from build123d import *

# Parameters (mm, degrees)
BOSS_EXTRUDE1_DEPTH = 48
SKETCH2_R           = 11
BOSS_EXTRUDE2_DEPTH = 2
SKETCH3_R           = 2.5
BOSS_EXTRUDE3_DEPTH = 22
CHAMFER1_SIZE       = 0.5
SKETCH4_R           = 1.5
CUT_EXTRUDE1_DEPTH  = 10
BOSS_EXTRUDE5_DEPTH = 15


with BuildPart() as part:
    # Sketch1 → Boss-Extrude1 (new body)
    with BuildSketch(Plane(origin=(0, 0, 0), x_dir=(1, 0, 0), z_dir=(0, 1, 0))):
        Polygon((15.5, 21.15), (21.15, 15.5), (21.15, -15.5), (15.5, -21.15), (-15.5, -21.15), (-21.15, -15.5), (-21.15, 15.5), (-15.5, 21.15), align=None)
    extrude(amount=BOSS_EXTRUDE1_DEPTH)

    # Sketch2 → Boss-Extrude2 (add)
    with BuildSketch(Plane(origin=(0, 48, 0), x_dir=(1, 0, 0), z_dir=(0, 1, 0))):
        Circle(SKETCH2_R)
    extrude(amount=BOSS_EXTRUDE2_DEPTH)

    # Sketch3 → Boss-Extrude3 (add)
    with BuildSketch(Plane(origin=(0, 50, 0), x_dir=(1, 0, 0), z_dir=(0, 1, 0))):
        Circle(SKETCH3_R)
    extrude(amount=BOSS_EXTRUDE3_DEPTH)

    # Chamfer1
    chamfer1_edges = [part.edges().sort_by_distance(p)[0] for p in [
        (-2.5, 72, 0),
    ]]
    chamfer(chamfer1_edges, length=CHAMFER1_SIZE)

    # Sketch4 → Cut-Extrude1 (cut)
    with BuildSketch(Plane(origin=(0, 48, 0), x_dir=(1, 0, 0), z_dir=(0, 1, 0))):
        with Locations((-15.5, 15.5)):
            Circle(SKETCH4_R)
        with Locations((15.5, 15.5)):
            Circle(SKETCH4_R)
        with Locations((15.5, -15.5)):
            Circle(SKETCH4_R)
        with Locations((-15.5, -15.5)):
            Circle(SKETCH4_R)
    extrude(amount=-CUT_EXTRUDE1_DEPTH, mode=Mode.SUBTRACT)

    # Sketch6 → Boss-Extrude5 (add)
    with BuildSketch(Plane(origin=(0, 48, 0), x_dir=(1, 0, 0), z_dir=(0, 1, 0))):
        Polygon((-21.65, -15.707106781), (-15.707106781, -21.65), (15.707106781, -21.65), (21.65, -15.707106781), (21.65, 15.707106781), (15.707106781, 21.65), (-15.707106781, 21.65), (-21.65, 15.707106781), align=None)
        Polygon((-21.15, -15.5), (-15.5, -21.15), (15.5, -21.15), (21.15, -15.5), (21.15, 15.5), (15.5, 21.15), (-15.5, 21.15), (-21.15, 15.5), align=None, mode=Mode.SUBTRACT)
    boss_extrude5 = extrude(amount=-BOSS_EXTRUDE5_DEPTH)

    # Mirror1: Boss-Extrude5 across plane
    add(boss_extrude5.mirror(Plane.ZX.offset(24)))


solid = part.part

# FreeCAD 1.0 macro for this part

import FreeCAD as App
import Part
import Sketcher
from FreeCAD import Vector
Q = App.Units.Quantity


def edges_at(feature, points):
    """Names of the edges that pass closest to the given points."""
    edges = feature.Shape.Edges
    near = lambda p: min(range(len(edges)), key=lambda i: edges[i].distToShape(Part.Vertex(*p))[0])
    return sorted({f"Edge{near(p) + 1}" for p in points})


def add_polygon(sketch, points):
    """Adds a closed chain of lines whose ends are joined by coincident constraints."""
    first, n = sketch.GeometryCount, len(points)
    for a, b in zip(points, points[1:] + points[:1]):
        sketch.addGeometry(Part.LineSegment(App.Vector(*a, 0), App.Vector(*b, 0)), False)
    for i in range(n):
        sketch.addConstraint(Sketcher.Constraint("Coincident", first + i, 2, first + (i + 1) % n, 1))

doc = App.newDocument("Part")
body = doc.addObject("PartDesign::Body", "Body")

sketch1 = body.newObject("Sketcher::SketchObject", "Sketch")
sketch1.AttachmentSupport = (doc.getObject("XZ_Plane"), [""])
sketch1.MapMode = "FlatFace"
add_polygon(sketch1, [(21.15, -15.5), (15.5, -21.15), (-15.5, -21.15), (-21.15, -15.5), (-21.15, 15.5), (-15.5, 21.15), (15.5, 21.15), (21.15, 15.5)])
sketch1.addConstraint(Sketcher.Constraint("Horizontal", 1))
sketch1.addConstraint(Sketcher.Constraint("Vertical", 3))
sketch1.addConstraint(Sketcher.Constraint("Horizontal", 5))
sketch1.addConstraint(Sketcher.Constraint("Vertical", 7))
sketch1.addConstraint(Sketcher.Constraint("Symmetric", 0, 2, 4, 2, -1, 1))
sketch1.addConstraint(Sketcher.Constraint("Symmetric", 2, 2, 6, 2, -1, 1))
sketch1.addConstraint(Sketcher.Constraint("Perpendicular", 0, 2))
sketch1.addConstraint(Sketcher.Constraint("Perpendicular", 2, 4))
sketch1.addConstraint(Sketcher.Constraint("Perpendicular", 4, 6))
sketch1.addConstraint(Sketcher.Constraint("Horizontal", 3, 2, 6, 2))
sketch1.addConstraint(Sketcher.Constraint("Vertical", 1, 2, 4, 2))
sketch1.addConstraint(Sketcher.Constraint("Equal", 5, 3))
sketch1.addConstraint(Sketcher.Constraint("DistanceX", 1, 2, 1, 1, Q("31 mm")))
sketch1.addConstraint(Sketcher.Constraint("DistanceY", 1, 2, 4, 2, Q("42.3 mm")))
pad1 = body.newObject("PartDesign::Pad", "Pad")
pad1.Profile = sketch1
pad1.Length = 48
pad1.Reversed = True

sketch2 = body.newObject("Sketcher::SketchObject", "Sketch001")
sketch2.AttachmentSupport = (doc.getObject("XZ_Plane"), [""])
sketch2.MapMode = "FlatFace"
sketch2.AttachmentOffset = App.Placement(Vector(0, 0, -48), App.Rotation())
sketch2.addGeometry(Part.Circle(Vector(0, 0, 0), Vector(0, 0, 1), 11), False)
sketch2.addConstraint(Sketcher.Constraint("Coincident", 0, 3, -1, 1))
sketch2.addConstraint(Sketcher.Constraint("Diameter", 0, Q("22 mm")))
pad2 = body.newObject("PartDesign::Pad", "Pad001")
pad2.Profile = sketch2
pad2.Length = 2
pad2.Reversed = True

sketch3 = body.newObject("Sketcher::SketchObject", "Sketch002")
sketch3.AttachmentSupport = (doc.getObject("XZ_Plane"), [""])
sketch3.MapMode = "FlatFace"
sketch3.AttachmentOffset = App.Placement(Vector(0, 0, -50), App.Rotation())
sketch3.addGeometry(Part.Circle(Vector(0, 0, 0), Vector(0, 0, 1), 2.5), False)
sketch3.addConstraint(Sketcher.Constraint("Coincident", 0, 3, -1, 1))
sketch3.addConstraint(Sketcher.Constraint("Diameter", 0, Q("5 mm")))
pad3 = body.newObject("PartDesign::Pad", "Pad002")
pad3.Profile = sketch3
pad3.Length = 22
pad3.Reversed = True
doc.recompute()

chamfer = body.newObject("PartDesign::Chamfer", "Chamfer")
chamfer.Base = (pad3, edges_at(pad3, [(-2.5, 72, 0)]))
chamfer.Size = 0.5

sketch4 = body.newObject("Sketcher::SketchObject", "Sketch003")
sketch4.AttachmentSupport = (doc.getObject("XZ_Plane"), [""])
sketch4.MapMode = "FlatFace"
sketch4.AttachmentOffset = App.Placement(Vector(0, 0, -48), App.Rotation())
sketch4.addGeometry(Part.Circle(Vector(-15.5, -15.5, 0), Vector(0, 0, 1), 1.5), False)
sketch4.addGeometry(Part.Circle(Vector(15.5, -15.5, 0), Vector(0, 0, 1), 1.5), False)
sketch4.addGeometry(Part.Circle(Vector(15.5, 15.5, 0), Vector(0, 0, 1), 1.5), False)
sketch4.addGeometry(Part.Circle(Vector(-15.5, 15.5, 0), Vector(0, 0, 1), 1.5), False)
sketch4.addConstraint(Sketcher.Constraint("Equal", 0, 1))
sketch4.addConstraint(Sketcher.Constraint("Equal", 1, 2))
sketch4.addConstraint(Sketcher.Constraint("Equal", 2, 3))
sketch4.addConstraint(Sketcher.Constraint("Symmetric", 0, 3, 2, 3, -1, 1))
sketch4.addConstraint(Sketcher.Constraint("Symmetric", 1, 3, 3, 3, -1, 1))
sketch4.addConstraint(Sketcher.Constraint("Symmetric", 0, 3, 1, 3, -2))
sketch4.addConstraint(Sketcher.Constraint("Diameter", 0, Q("3 mm")))
sketch4.addConstraint(Sketcher.Constraint("DistanceX", 0, 3, 1, 3, Q("31 mm")))
sketch4.addConstraint(Sketcher.Constraint("DistanceY", 1, 3, 2, 3, Q("31 mm")))
pocket1 = body.newObject("PartDesign::Pocket", "Pocket")
pocket1.Profile = sketch4
pocket1.Length = 10
pocket1.Reversed = True

sketch5 = body.newObject("Sketcher::SketchObject", "Sketch004")
sketch5.AttachmentSupport = (doc.getObject("XZ_Plane"), [""])
sketch5.MapMode = "FlatFace"
sketch5.AttachmentOffset = App.Placement(Vector(0, 0, -48), App.Rotation())
add_polygon(sketch5, [(-21.65, 15.707107), (-15.707107, 21.65), (15.707107, 21.65), (21.65, 15.707107), (21.65, -15.707107), (15.707107, -21.65), (-15.707107, -21.65), (-21.65, -15.707107)])
add_polygon(sketch5, [(-15.5, 21.15), (-21.15, 15.5), (-21.15, -15.5), (-15.5, -21.15), (15.5, -21.15), (21.15, -15.5), (21.15, 15.5), (15.5, 21.15)])
sketch5.addConstraint(Sketcher.Constraint("Horizontal", 1))
sketch5.addConstraint(Sketcher.Constraint("Vertical", 3))
sketch5.addConstraint(Sketcher.Constraint("Horizontal", 5))
sketch5.addConstraint(Sketcher.Constraint("Vertical", 7))
sketch5.addConstraint(Sketcher.Constraint("Vertical", 9))
sketch5.addConstraint(Sketcher.Constraint("Horizontal", 11))
sketch5.addConstraint(Sketcher.Constraint("Vertical", 13))
sketch5.addConstraint(Sketcher.Constraint("Horizontal", 15))
sketch5.addConstraint(Sketcher.Constraint("Symmetric", 0, 2, 4, 2, -1, 1))
sketch5.addConstraint(Sketcher.Constraint("Symmetric", 2, 2, 6, 2, -1, 1))
sketch5.addConstraint(Sketcher.Constraint("Symmetric", 8, 2, 12, 2, -1, 1))
sketch5.addConstraint(Sketcher.Constraint("Symmetric", 10, 2, 14, 2, -1, 1))
sketch5.addConstraint(Sketcher.Constraint("Perpendicular", 0, 2))
sketch5.addConstraint(Sketcher.Constraint("Perpendicular", 2, 4))
sketch5.addConstraint(Sketcher.Constraint("Perpendicular", 4, 6))
sketch5.addConstraint(Sketcher.Constraint("Perpendicular", 6, 8))
sketch5.addConstraint(Sketcher.Constraint("Perpendicular", 8, 10))
sketch5.addConstraint(Sketcher.Constraint("Perpendicular", 10, 12))
sketch5.addConstraint(Sketcher.Constraint("Perpendicular", 12, 14))
sketch5.addConstraint(Sketcher.Constraint("Horizontal", 3, 2, 6, 2))
sketch5.addConstraint(Sketcher.Constraint("Horizontal", 9, 2, 12, 2))
sketch5.addConstraint(Sketcher.Constraint("Vertical", 1, 2, 4, 2))
sketch5.addConstraint(Sketcher.Constraint("Equal", 5, 3))
sketch5.addConstraint(Sketcher.Constraint("Equal", 15, 9))
sketch5.addConstraint(Sketcher.Constraint("DistanceX", 11, 1, 11, 2, Q("31 mm")))
sketch5.addConstraint(Sketcher.Constraint("DistanceY", 4, 2, 1, 2, Q("43.3 mm")))
sketch5.addConstraint(Sketcher.Constraint("DistanceX", 7, 2, 8, 2, Q("0.5 mm")))
sketch5.addConstraint(Sketcher.Constraint("Distance", 0, Q("8.40452 mm")))
pad4 = body.newObject("PartDesign::Pad", "Pad003")
pad4.Profile = sketch5
pad4.Length = 15
doc.recompute()

datumplane = body.newObject("PartDesign::Plane", "DatumPlane")
datumplane.AttachmentSupport = (doc.getObject("XZ_Plane"), [""])
datumplane.MapMode = "FlatFace"
datumplane.AttachmentOffset = App.Placement(Vector(0, 0, -24), App.Rotation())
mirrored = body.newObject("PartDesign::Mirrored", "Mirrored")
mirrored.Originals = [pad4]
mirrored.MirrorPlane = (datumplane, [""])
body.Tip = mirrored

doc.recompute()
